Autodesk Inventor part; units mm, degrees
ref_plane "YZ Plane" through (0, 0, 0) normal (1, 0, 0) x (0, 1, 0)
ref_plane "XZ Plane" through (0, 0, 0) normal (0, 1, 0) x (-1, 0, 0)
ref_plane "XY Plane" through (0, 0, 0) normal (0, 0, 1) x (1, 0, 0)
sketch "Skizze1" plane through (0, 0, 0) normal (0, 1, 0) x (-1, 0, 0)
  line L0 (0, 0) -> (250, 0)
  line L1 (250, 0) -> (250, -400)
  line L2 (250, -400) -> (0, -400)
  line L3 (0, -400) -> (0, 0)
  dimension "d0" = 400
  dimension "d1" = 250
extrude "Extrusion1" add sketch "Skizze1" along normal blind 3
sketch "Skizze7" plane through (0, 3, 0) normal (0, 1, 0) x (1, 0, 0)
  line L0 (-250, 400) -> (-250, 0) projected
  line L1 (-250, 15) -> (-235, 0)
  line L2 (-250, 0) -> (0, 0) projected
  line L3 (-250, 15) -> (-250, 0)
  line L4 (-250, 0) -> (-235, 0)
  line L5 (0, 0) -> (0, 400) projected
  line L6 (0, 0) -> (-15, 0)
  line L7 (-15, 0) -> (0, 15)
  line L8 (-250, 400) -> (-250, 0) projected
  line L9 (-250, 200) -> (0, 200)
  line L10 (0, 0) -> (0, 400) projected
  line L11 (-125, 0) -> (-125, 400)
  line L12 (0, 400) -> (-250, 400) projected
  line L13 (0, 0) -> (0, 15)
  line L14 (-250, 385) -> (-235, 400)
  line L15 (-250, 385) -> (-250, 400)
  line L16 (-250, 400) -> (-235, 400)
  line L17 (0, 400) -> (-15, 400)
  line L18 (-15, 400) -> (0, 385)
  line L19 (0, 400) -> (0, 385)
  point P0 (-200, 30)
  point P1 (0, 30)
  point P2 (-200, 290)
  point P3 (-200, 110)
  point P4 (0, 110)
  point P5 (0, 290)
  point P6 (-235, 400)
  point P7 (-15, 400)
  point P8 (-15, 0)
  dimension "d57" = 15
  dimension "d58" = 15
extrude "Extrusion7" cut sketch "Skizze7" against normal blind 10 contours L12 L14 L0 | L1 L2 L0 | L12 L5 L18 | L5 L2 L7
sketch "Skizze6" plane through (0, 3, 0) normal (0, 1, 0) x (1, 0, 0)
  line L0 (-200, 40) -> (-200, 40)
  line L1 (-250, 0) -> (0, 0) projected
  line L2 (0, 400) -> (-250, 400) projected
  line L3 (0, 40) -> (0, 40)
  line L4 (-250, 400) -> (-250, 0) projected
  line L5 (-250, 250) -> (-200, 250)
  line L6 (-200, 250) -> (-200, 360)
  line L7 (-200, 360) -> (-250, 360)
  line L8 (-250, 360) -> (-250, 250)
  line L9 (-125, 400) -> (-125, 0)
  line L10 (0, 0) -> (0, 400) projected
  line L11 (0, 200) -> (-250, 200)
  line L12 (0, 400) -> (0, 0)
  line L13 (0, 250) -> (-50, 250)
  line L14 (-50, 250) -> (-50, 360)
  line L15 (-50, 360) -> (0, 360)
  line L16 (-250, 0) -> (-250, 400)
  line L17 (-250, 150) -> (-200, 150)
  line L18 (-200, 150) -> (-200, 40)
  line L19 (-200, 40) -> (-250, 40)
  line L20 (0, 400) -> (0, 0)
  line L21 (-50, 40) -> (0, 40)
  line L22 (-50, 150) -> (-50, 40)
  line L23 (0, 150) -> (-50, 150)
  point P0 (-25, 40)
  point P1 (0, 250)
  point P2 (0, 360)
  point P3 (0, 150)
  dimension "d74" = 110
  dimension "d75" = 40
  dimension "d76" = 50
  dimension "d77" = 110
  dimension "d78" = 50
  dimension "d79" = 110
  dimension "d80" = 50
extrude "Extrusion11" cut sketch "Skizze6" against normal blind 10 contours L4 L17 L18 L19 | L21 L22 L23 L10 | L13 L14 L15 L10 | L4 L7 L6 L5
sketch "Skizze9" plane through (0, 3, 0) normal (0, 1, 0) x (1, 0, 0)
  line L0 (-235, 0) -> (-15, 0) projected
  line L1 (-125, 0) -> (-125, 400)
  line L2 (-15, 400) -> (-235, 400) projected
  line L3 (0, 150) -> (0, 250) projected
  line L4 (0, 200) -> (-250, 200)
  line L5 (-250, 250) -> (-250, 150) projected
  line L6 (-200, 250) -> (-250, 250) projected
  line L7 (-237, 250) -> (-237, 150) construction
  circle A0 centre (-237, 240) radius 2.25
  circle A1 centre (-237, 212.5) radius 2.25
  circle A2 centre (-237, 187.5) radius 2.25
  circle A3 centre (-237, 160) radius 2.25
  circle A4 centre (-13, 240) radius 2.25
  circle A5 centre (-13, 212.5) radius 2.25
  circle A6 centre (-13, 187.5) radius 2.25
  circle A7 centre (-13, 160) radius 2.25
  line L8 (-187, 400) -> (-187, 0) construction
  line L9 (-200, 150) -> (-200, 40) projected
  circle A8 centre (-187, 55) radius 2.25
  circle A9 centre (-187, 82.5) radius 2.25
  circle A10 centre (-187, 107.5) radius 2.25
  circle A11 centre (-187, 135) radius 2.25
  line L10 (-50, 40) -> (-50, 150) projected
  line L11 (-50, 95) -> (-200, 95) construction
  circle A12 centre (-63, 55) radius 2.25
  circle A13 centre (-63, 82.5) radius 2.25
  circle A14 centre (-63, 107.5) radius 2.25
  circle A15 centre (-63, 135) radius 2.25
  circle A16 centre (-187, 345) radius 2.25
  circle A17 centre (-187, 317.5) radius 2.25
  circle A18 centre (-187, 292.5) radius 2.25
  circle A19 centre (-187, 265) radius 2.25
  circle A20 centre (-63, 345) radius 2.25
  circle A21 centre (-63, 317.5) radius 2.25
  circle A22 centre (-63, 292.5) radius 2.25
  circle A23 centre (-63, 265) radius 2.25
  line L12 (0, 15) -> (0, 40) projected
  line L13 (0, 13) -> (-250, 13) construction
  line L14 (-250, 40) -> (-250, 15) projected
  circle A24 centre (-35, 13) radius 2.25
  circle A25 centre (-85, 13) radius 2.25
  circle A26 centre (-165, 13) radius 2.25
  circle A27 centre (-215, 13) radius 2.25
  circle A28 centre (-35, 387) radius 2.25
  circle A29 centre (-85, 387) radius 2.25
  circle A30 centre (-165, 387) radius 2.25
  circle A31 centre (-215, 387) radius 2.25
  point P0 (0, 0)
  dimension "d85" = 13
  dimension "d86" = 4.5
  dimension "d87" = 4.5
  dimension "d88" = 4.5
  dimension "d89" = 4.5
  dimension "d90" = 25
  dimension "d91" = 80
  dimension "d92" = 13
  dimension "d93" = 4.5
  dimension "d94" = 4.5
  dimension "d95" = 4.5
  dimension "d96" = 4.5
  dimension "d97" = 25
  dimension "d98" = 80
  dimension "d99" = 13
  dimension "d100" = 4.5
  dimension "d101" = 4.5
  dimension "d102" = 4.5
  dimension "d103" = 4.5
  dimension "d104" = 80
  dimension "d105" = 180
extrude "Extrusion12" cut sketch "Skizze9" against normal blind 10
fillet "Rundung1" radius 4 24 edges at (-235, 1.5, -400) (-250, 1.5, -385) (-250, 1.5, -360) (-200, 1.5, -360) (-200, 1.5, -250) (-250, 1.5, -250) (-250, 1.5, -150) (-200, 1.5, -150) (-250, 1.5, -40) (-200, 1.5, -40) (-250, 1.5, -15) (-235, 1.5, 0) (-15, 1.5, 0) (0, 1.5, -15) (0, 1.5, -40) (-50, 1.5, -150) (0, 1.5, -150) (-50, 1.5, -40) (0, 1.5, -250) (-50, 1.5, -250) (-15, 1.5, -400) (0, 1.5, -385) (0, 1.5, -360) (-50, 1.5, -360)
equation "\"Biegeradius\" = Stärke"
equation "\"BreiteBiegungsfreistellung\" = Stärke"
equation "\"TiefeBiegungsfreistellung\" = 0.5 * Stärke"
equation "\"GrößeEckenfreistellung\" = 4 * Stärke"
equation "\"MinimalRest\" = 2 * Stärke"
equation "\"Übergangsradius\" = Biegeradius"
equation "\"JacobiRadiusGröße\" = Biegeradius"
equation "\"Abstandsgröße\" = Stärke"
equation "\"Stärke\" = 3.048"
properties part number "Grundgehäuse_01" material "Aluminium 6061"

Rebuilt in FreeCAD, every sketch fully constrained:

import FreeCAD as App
import Part
import Sketcher
Q = App.Units.Quantity


def edges_at(feature, points):
    """Names of the edges that pass closest to the given points."""
    edges = feature.Shape.Edges
    near = lambda p: min(range(len(edges)), key=lambda i: edges[i].distToShape(Part.Vertex(*p))[0])
    return sorted({f"Edge{near(p) + 1}" for p in points})


def add_polygon(sketch, points):
    """Adds a closed chain of lines whose ends are joined by coincident constraints."""
    first, n = sketch.GeometryCount, len(points)
    for a, b in zip(points, points[1:] + points[:1]):
        sketch.addGeometry(Part.LineSegment(App.Vector(*a, 0), App.Vector(*b, 0)), False)
    for i in range(n):
        sketch.addConstraint(Sketcher.Constraint("Coincident", first + i, 2, first + (i + 1) % n, 1))

doc = App.newDocument("Part")
body = doc.addObject("PartDesign::Body", "Body")

# Sketch on XZ plane
sketch1 = body.newObject("Sketcher::SketchObject", "Sketch")
sketch1.AttachmentSupport = (doc.getObject("XZ_Plane"), [""])
sketch1.MapMode = "FlatFace"
add_polygon(sketch1, [(-250, 0), (0, 0), (0, -400), (-250, -400)])  # lines 0-3
sketch1.addConstraint(Sketcher.Constraint("Horizontal", 0))
sketch1.addConstraint(Sketcher.Constraint("Vertical", 1))
sketch1.addConstraint(Sketcher.Constraint("Horizontal", 2))
sketch1.addConstraint(Sketcher.Constraint("Vertical", 3))
sketch1.addConstraint(Sketcher.Constraint("Coincident", 0, 2, -1, 1))
sketch1.addConstraint(Sketcher.Constraint("DistanceX", 0, 1, 0, 2, Q("250 mm")))
sketch1.addConstraint(Sketcher.Constraint("DistanceY", 1, 2, 1, 1, Q("400 mm")))
pad1 = body.newObject("PartDesign::Pad", "Pad")
pad1.Profile = sketch1
pad1.Length = 3
pad1.Reversed = True

# Sketch on XZ plane
sketch2 = body.newObject("Sketcher::SketchObject", "Sketch001")
sketch2.AttachmentSupport = (doc.getObject("XZ_Plane"), [""])
sketch2.MapMode = "FlatFace"
sketch2.AttachmentOffset = App.Placement(App.Vector(0, 0, -3), App.Rotation())
add_polygon(sketch2, [(-235, -400), (-250, -400), (-250, -385)])  # lines 0-2
add_polygon(sketch2, [(-235, 0), (-250, -15), (-250, 0)])  # lines 3-5
add_polygon(sketch2, [(0, -400), (-15, -400), (0, -385)])  # lines 6-8
add_polygon(sketch2, [(0, 0), (0, -15), (-15, 0)])  # lines 9-11
sketch2.addConstraint(Sketcher.Constraint("Horizontal", 0))
sketch2.addConstraint(Sketcher.Constraint("Vertical", 1))
sketch2.addConstraint(Sketcher.Constraint("Vertical", 4))
sketch2.addConstraint(Sketcher.Constraint("Horizontal", 5))
sketch2.addConstraint(Sketcher.Constraint("Horizontal", 6))
sketch2.addConstraint(Sketcher.Constraint("Vertical", 8))
sketch2.addConstraint(Sketcher.Constraint("Vertical", 9))
sketch2.addConstraint(Sketcher.Constraint("Horizontal", 11))
sketch2.addConstraint(Sketcher.Constraint("Coincident", 11, 2, -1, 1))
sketch2.addConstraint(Sketcher.Constraint("PointOnObject", 4, 2, -1))
sketch2.addConstraint(Sketcher.Constraint("PointOnObject", 7, 2, -2))
sketch2.addConstraint(Sketcher.Constraint("Perpendicular", 2, 3))
sketch2.addConstraint(Sketcher.Constraint("Parallel", 3, 7))
sketch2.addConstraint(Sketcher.Constraint("Perpendicular", 7, 10))
sketch2.addConstraint(Sketcher.Constraint("Horizontal", 2, 2, 6, 2))
sketch2.addConstraint(Sketcher.Constraint("Horizontal", 1, 2, 7, 2))
sketch2.addConstraint(Sketcher.Constraint("Horizontal", 3, 2, 9, 2))
sketch2.addConstraint(Sketcher.Constraint("Vertical", 1, 2, 3, 2))
sketch2.addConstraint(Sketcher.Constraint("Vertical", 2, 2, 5, 2))
sketch2.addConstraint(Sketcher.Constraint("Vertical", 6, 2, 10, 2))
sketch2.addConstraint(Sketcher.Constraint("DistanceX", 0, 2, 0, 1, Q("15 mm")))
sketch2.addConstraint(Sketcher.Constraint("DistanceX", 0, 2, -1, 1, Q("250 mm")))
sketch2.addConstraint(Sketcher.Constraint("DistanceY", 0, 2, -1, 1, Q("400 mm")))
pocket1 = body.newObject("PartDesign::Pocket", "Pocket")
pocket1.Profile = sketch2
pocket1.Length = 10
pocket1.Reversed = True

# Sketch on XZ plane
sketch3 = body.newObject("Sketcher::SketchObject", "Sketch002")
sketch3.AttachmentSupport = (doc.getObject("XZ_Plane"), [""])
sketch3.MapMode = "FlatFace"
sketch3.AttachmentOffset = App.Placement(App.Vector(0, 0, -3), App.Rotation())
add_polygon(sketch3, [(-250, -150), (-250, -40), (-200, -40), (-200, -150)])  # lines 0-3
add_polygon(sketch3, [(-50, -40), (0, -40), (0, -150), (-50, -150)])  # lines 4-7
add_polygon(sketch3, [(-50, -250), (0, -250), (0, -360), (-50, -360)])  # lines 8-11
add_polygon(sketch3, [(-250, -360), (-250, -250), (-200, -250), (-200, -360)])  # lines 12-15
sketch3.addConstraint(Sketcher.Constraint("Vertical", 0))
sketch3.addConstraint(Sketcher.Constraint("Horizontal", 1))
sketch3.addConstraint(Sketcher.Constraint("Vertical", 2))
sketch3.addConstraint(Sketcher.Constraint("Horizontal", 3))
sketch3.addConstraint(Sketcher.Constraint("Horizontal", 4))
sketch3.addConstraint(Sketcher.Constraint("Vertical", 5))
sketch3.addConstraint(Sketcher.Constraint("Horizontal", 6))
sketch3.addConstraint(Sketcher.Constraint("Vertical", 7))
sketch3.addConstraint(Sketcher.Constraint("Horizontal", 8))
sketch3.addConstraint(Sketcher.Constraint("Vertical", 9))
sketch3.addConstraint(Sketcher.Constraint("Horizontal", 10))
sketch3.addConstraint(Sketcher.Constraint("Vertical", 11))
sketch3.addConstraint(Sketcher.Constraint("Vertical", 12))
sketch3.addConstraint(Sketcher.Constraint("Horizontal", 13))
sketch3.addConstraint(Sketcher.Constraint("Vertical", 14))
sketch3.addConstraint(Sketcher.Constraint("Horizontal", 15))
sketch3.addConstraint(Sketcher.Constraint("PointOnObject", 4, 2, -2))
sketch3.addConstraint(Sketcher.Constraint("PointOnObject", 8, 2, -2))
sketch3.addConstraint(Sketcher.Constraint("Horizontal", 1, 2, 4, 2))
sketch3.addConstraint(Sketcher.Constraint("Horizontal", 3, 2, 5, 2))
sketch3.addConstraint(Sketcher.Constraint("Horizontal", 11, 2, 12, 2))
sketch3.addConstraint(Sketcher.Constraint("Horizontal", 10, 2, 14, 2))
sketch3.addConstraint(Sketcher.Constraint("Vertical", 7, 2, 10, 2))
sketch3.addConstraint(Sketcher.Constraint("Vertical", 3, 2, 12, 2))
sketch3.addConstraint(Sketcher.Constraint("Vertical", 2, 2, 13, 2))
sketch3.addConstraint(Sketcher.Constraint("Equal", 3, 4))
sketch3.addConstraint(Sketcher.Constraint("Equal", 7, 9))
sketch3.addConstraint(Sketcher.Constraint("DistanceX", 1, 1, 1, 2, Q("50 mm")))
sketch3.addConstraint(Sketcher.Constraint("DistanceY", 0, 1, 0, 2, Q("110 mm")))
sketch3.addConstraint(Sketcher.Constraint("DistanceY", 0, 2, -1, 1, Q("40 mm")))
sketch3.addConstraint(Sketcher.Constraint("DistanceX", 0, 2, -1, 1, Q("250 mm")))
sketch3.addConstraint(Sketcher.Constraint("DistanceY", 8, 2, -1, 1, Q("250 mm")))
pocket2 = body.newObject("PartDesign::Pocket", "Pocket001")
pocket2.Profile = sketch3
pocket2.Length = 10
pocket2.Reversed = True

# Sketch on XZ plane
sketch4 = body.newObject("Sketcher::SketchObject", "Sketch003")
sketch4.AttachmentSupport = (doc.getObject("XZ_Plane"), [""])
sketch4.MapMode = "FlatFace"
sketch4.AttachmentOffset = App.Placement(App.Vector(0, 0, -3), App.Rotation())
sketch4.addGeometry(Part.Circle(App.Vector(-237, -240, 0), App.Vector(0, 0, 1), 2.2), False)
sketch4.addGeometry(Part.Circle(App.Vector(-237, -212.5, 0), App.Vector(0, 0, 1), 2.2), False)
sketch4.addGeometry(Part.Circle(App.Vector(-237, -187.5, 0), App.Vector(0, 0, 1), 2.2), False)
sketch4.addGeometry(Part.Circle(App.Vector(-237, -160, 0), App.Vector(0, 0, 1), 2.2), False)
sketch4.addGeometry(Part.Circle(App.Vector(-13, -240, 0), App.Vector(0, 0, 1), 2.2), False)
sketch4.addGeometry(Part.Circle(App.Vector(-13, -212.5, 0), App.Vector(0, 0, 1), 2.2), False)
sketch4.addGeometry(Part.Circle(App.Vector(-13, -187.5, 0), App.Vector(0, 0, 1), 2.2), False)
sketch4.addGeometry(Part.Circle(App.Vector(-13, -160, 0), App.Vector(0, 0, 1), 2.2), False)
sketch4.addGeometry(Part.Circle(App.Vector(-187, -55, 0), App.Vector(0, 0, 1), 2.2), False)
sketch4.addGeometry(Part.Circle(App.Vector(-187, -82.5, 0), App.Vector(0, 0, 1), 2.2), False)
sketch4.addGeometry(Part.Circle(App.Vector(-187, -107.5, 0), App.Vector(0, 0, 1), 2.2), False)
sketch4.addGeometry(Part.Circle(App.Vector(-187, -135, 0), App.Vector(0, 0, 1), 2.2), False)
sketch4.addGeometry(Part.Circle(App.Vector(-63, -55, 0), App.Vector(0, 0, 1), 2.2), False)
sketch4.addGeometry(Part.Circle(App.Vector(-63, -82.5, 0), App.Vector(0, 0, 1), 2.2), False)
sketch4.addGeometry(Part.Circle(App.Vector(-63, -107.5, 0), App.Vector(0, 0, 1), 2.2), False)
sketch4.addGeometry(Part.Circle(App.Vector(-63, -135, 0), App.Vector(0, 0, 1), 2.2), False)
sketch4.addGeometry(Part.Circle(App.Vector(-187, -345, 0), App.Vector(0, 0, 1), 2.2), False)
sketch4.addGeometry(Part.Circle(App.Vector(-187, -317.5, 0), App.Vector(0, 0, 1), 2.2), False)
sketch4.addGeometry(Part.Circle(App.Vector(-187, -292.5, 0), App.Vector(0, 0, 1), 2.2), False)
sketch4.addGeometry(Part.Circle(App.Vector(-187, -265, 0), App.Vector(0, 0, 1), 2.2), False)
sketch4.addGeometry(Part.Circle(App.Vector(-63, -345, 0), App.Vector(0, 0, 1), 2.2), False)
sketch4.addGeometry(Part.Circle(App.Vector(-63, -317.5, 0), App.Vector(0, 0, 1), 2.2), False)
sketch4.addGeometry(Part.Circle(App.Vector(-63, -292.5, 0), App.Vector(0, 0, 1), 2.2), False)
sketch4.addGeometry(Part.Circle(App.Vector(-63, -265, 0), App.Vector(0, 0, 1), 2.2), False)
sketch4.addGeometry(Part.Circle(App.Vector(-35, -13, 0), App.Vector(0, 0, 1), 2.2), False)
sketch4.addGeometry(Part.Circle(App.Vector(-85, -13, 0), App.Vector(0, 0, 1), 2.2), False)
sketch4.addGeometry(Part.Circle(App.Vector(-165, -13, 0), App.Vector(0, 0, 1), 2.2), False)
sketch4.addGeometry(Part.Circle(App.Vector(-215, -13, 0), App.Vector(0, 0, 1), 2.2), False)
sketch4.addGeometry(Part.Circle(App.Vector(-35, -387, 0), App.Vector(0, 0, 1), 2.2), False)
sketch4.addGeometry(Part.Circle(App.Vector(-85, -387, 0), App.Vector(0, 0, 1), 2.2), False)
sketch4.addGeometry(Part.Circle(App.Vector(-165, -387, 0), App.Vector(0, 0, 1), 2.2), False)
sketch4.addGeometry(Part.Circle(App.Vector(-215, -387, 0), App.Vector(0, 0, 1), 2.2), False)
sketch4.addConstraint(Sketcher.Constraint("Equal", 0, 1))
sketch4.addConstraint(Sketcher.Constraint("Equal", 1, 2))
sketch4.addConstraint(Sketcher.Constraint("Equal", 2, 3))
sketch4.addConstraint(Sketcher.Constraint("Equal", 3, 4))
sketch4.addConstraint(Sketcher.Constraint("Equal", 4, 5))
sketch4.addConstraint(Sketcher.Constraint("Equal", 5, 6))
sketch4.addConstraint(Sketcher.Constraint("Equal", 6, 7))
sketch4.addConstraint(Sketcher.Constraint("Equal", 7, 8))
sketch4.addConstraint(Sketcher.Constraint("Equal", 8, 9))
sketch4.addConstraint(Sketcher.Constraint("Equal", 9, 10))
sketch4.addConstraint(Sketcher.Constraint("Equal", 10, 11))
sketch4.addConstraint(Sketcher.Constraint("Equal", 11, 12))
sketch4.addConstraint(Sketcher.Constraint("Equal", 12, 13))
sketch4.addConstraint(Sketcher.Constraint("Equal", 13, 14))
sketch4.addConstraint(Sketcher.Constraint("Equal", 14, 15))
sketch4.addConstraint(Sketcher.Constraint("Equal", 15, 16))
sketch4.addConstraint(Sketcher.Constraint("Equal", 16, 17))
sketch4.addConstraint(Sketcher.Constraint("Equal", 17, 18))
sketch4.addConstraint(Sketcher.Constraint("Equal", 18, 19))
sketch4.addConstraint(Sketcher.Constraint("Equal", 19, 20))
sketch4.addConstraint(Sketcher.Constraint("Equal", 20, 21))
sketch4.addConstraint(Sketcher.Constraint("Equal", 21, 22))
sketch4.addConstraint(Sketcher.Constraint("Equal", 22, 23))
sketch4.addConstraint(Sketcher.Constraint("Equal", 23, 24))
sketch4.addConstraint(Sketcher.Constraint("Equal", 24, 25))
sketch4.addConstraint(Sketcher.Constraint("Equal", 25, 26))
sketch4.addConstraint(Sketcher.Constraint("Equal", 26, 27))
sketch4.addConstraint(Sketcher.Constraint("Equal", 27, 28))
sketch4.addConstraint(Sketcher.Constraint("Equal", 28, 29))
sketch4.addConstraint(Sketcher.Constraint("Equal", 29, 30))
sketch4.addConstraint(Sketcher.Constraint("Equal", 30, 31))
sketch4.addConstraint(Sketcher.Constraint("Horizontal", 0, 3, 4, 3))
sketch4.addConstraint(Sketcher.Constraint("Horizontal", 1, 3, 5, 3))
sketch4.addConstraint(Sketcher.Constraint("Horizontal", 2, 3, 6, 3))
sketch4.addConstraint(Sketcher.Constraint("Horizontal", 3, 3, 7, 3))
sketch4.addConstraint(Sketcher.Constraint("Horizontal", 8, 3, 12, 3))
sketch4.addConstraint(Sketcher.Constraint("Horizontal", 9, 3, 13, 3))
sketch4.addConstraint(Sketcher.Constraint("Horizontal", 10, 3, 14, 3))
sketch4.addConstraint(Sketcher.Constraint("Horizontal", 11, 3, 15, 3))
sketch4.addConstraint(Sketcher.Constraint("Horizontal", 16, 3, 20, 3))
sketch4.addConstraint(Sketcher.Constraint("Horizontal", 17, 3, 21, 3))
sketch4.addConstraint(Sketcher.Constraint("Horizontal", 18, 3, 22, 3))
sketch4.addConstraint(Sketcher.Constraint("Horizontal", 19, 3, 23, 3))
sketch4.addConstraint(Sketcher.Constraint("Horizontal", 24, 3, 25, 3))
sketch4.addConstraint(Sketcher.Constraint("Horizontal", 25, 3, 26, 3))
sketch4.addConstraint(Sketcher.Constraint("Horizontal", 26, 3, 27, 3))
sketch4.addConstraint(Sketcher.Constraint("Horizontal", 28, 3, 29, 3))
sketch4.addConstraint(Sketcher.Constraint("Horizontal", 29, 3, 30, 3))
sketch4.addConstraint(Sketcher.Constraint("Horizontal", 30, 3, 31, 3))
sketch4.addConstraint(Sketcher.Constraint("Vertical", 0, 3, 1, 3))
sketch4.addConstraint(Sketcher.Constraint("Vertical", 1, 3, 2, 3))
sketch4.addConstraint(Sketcher.Constraint("Vertical", 2, 3, 3, 3))
sketch4.addConstraint(Sketcher.Constraint("Vertical", 4, 3, 5, 3))
sketch4.addConstraint(Sketcher.Constraint("Vertical", 5, 3, 6, 3))
sketch4.addConstraint(Sketcher.Constraint("Vertical", 6, 3, 7, 3))
sketch4.addConstraint(Sketcher.Constraint("Vertical", 8, 3, 9, 3))
sketch4.addConstraint(Sketcher.Constraint("Vertical", 9, 3, 10, 3))
sketch4.addConstraint(Sketcher.Constraint("Vertical", 10, 3, 11, 3))
sketch4.addConstraint(Sketcher.Constraint("Vertical", 12, 3, 13, 3))
sketch4.addConstraint(Sketcher.Constraint("Vertical", 13, 3, 14, 3))
sketch4.addConstraint(Sketcher.Constraint("Vertical", 14, 3, 15, 3))
sketch4.addConstraint(Sketcher.Constraint("Vertical", 11, 3, 16, 3))
sketch4.addConstraint(Sketcher.Constraint("Vertical", 16, 3, 17, 3))
sketch4.addConstraint(Sketcher.Constraint("Vertical", 17, 3, 18, 3))
sketch4.addConstraint(Sketcher.Constraint("Vertical", 18, 3, 19, 3))
sketch4.addConstraint(Sketcher.Constraint("Vertical", 15, 3, 20, 3))
sketch4.addConstraint(Sketcher.Constraint("Vertical", 20, 3, 21, 3))
sketch4.addConstraint(Sketcher.Constraint("Vertical", 21, 3, 22, 3))
sketch4.addConstraint(Sketcher.Constraint("Vertical", 22, 3, 23, 3))
sketch4.addConstraint(Sketcher.Constraint("Vertical", 24, 3, 28, 3))
sketch4.addConstraint(Sketcher.Constraint("Vertical", 25, 3, 29, 3))
sketch4.addConstraint(Sketcher.Constraint("Vertical", 26, 3, 30, 3))
sketch4.addConstraint(Sketcher.Constraint("Vertical", 27, 3, 31, 3))
sketch4.addConstraint(Sketcher.Constraint("Diameter", 0, Q("4.5 mm")))
sketch4.addConstraint(Sketcher.Constraint("DistanceX", 4, 3, -1, 1, Q("13 mm")))
sketch4.addConstraint(Sketcher.Constraint("DistanceY", 24, 3, -1, 1, Q("13 mm")))
sketch4.addConstraint(Sketcher.Constraint("DistanceY", 1, 3, 2, 3, Q("25 mm")))
sketch4.addConstraint(Sketcher.Constraint("DistanceY", 0, 3, 3, 3, Q("80 mm")))
sketch4.addConstraint(Sketcher.Constraint("DistanceY", 10, 3, 9, 3, Q("25 mm")))
sketch4.addConstraint(Sketcher.Constraint("DistanceY", 2, 3, 10, 3, Q("80 mm")))
sketch4.addConstraint(Sketcher.Constraint("DistanceY", 3, 3, 11, 3, Q("25 mm")))
sketch4.addConstraint(Sketcher.Constraint("DistanceY", 11, 3, 8, 3, Q("80 mm")))
sketch4.addConstraint(Sketcher.Constraint("DistanceY", 17, 3, 18, 3, Q("25 mm")))
sketch4.addConstraint(Sketcher.Constraint("DistanceY", 18, 3, 1, 3, Q("80 mm")))
sketch4.addConstraint(Sketcher.Constraint("DistanceY", 19, 3, 0, 3, Q("25 mm")))
sketch4.addConstraint(Sketcher.Constraint("DistanceY", 16, 3, 19, 3, Q("80 mm")))
sketch4.addConstraint(Sketcher.Constraint("DistanceX", 26, 3, 25, 3, Q("80 mm")))
sketch4.addConstraint(Sketcher.Constraint("DistanceX", 0, 3, -1, 1, Q("237 mm")))
sketch4.addConstraint(Sketcher.Constraint("DistanceY", 0, 3, -1, 1, Q("240 mm")))
sketch4.addConstraint(Sketcher.Constraint("DistanceX", 8, 3, -1, 1, Q("187 mm")))
sketch4.addConstraint(Sketcher.Constraint("DistanceX", 12, 3, -1, 1, Q("63 mm")))
sketch4.addConstraint(Sketcher.Constraint("DistanceX", 24, 3, -1, 1, Q("35 mm")))
sketch4.addConstraint(Sketcher.Constraint("DistanceX", 25, 3, -1, 1, Q("85 mm")))
sketch4.addConstraint(Sketcher.Constraint("DistanceX", 27, 3, -1, 1, Q("215 mm")))
sketch4.addConstraint(Sketcher.Constraint("DistanceY", 28, 3, -1, 1, Q("387 mm")))
sketch4.addConstraint(Sketcher.Constraint("DistanceY", 1, 3, -1, 1, Q("212.5 mm")))
pocket3 = body.newObject("PartDesign::Pocket", "Pocket002")
pocket3.Profile = sketch4
pocket3.Length = 10
pocket3.Reversed = True
doc.recompute()

fillet = body.newObject("PartDesign::Fillet", "Fillet")
fillet.Base = (pocket3, edges_at(pocket3, [
    (-235, 1.5, -400),
    (-250, 1.5, -385),
    (-250, 1.5, -360),
    (-200, 1.5, -360),
    (-200, 1.5, -250),
    (-250, 1.5, -250),
    (-250, 1.5, -150),
    (-200, 1.5, -150),
    (-250, 1.5, -40),
    (-200, 1.5, -40),
    (-250, 1.5, -15),
    (-235, 1.5, 0),
    (-15, 1.5, 0),
    (0, 1.5, -15),
    (0, 1.5, -40),
    (-50, 1.5, -150),
    (0, 1.5, -150),
    (-50, 1.5, -40),
    (0, 1.5, -250),
    (-50, 1.5, -250),
    (-15, 1.5, -400),
    (0, 1.5, -385),
    (0, 1.5, -360),
    (-50, 1.5, -360),
]))
fillet.Radius = 4

doc.recompute()
